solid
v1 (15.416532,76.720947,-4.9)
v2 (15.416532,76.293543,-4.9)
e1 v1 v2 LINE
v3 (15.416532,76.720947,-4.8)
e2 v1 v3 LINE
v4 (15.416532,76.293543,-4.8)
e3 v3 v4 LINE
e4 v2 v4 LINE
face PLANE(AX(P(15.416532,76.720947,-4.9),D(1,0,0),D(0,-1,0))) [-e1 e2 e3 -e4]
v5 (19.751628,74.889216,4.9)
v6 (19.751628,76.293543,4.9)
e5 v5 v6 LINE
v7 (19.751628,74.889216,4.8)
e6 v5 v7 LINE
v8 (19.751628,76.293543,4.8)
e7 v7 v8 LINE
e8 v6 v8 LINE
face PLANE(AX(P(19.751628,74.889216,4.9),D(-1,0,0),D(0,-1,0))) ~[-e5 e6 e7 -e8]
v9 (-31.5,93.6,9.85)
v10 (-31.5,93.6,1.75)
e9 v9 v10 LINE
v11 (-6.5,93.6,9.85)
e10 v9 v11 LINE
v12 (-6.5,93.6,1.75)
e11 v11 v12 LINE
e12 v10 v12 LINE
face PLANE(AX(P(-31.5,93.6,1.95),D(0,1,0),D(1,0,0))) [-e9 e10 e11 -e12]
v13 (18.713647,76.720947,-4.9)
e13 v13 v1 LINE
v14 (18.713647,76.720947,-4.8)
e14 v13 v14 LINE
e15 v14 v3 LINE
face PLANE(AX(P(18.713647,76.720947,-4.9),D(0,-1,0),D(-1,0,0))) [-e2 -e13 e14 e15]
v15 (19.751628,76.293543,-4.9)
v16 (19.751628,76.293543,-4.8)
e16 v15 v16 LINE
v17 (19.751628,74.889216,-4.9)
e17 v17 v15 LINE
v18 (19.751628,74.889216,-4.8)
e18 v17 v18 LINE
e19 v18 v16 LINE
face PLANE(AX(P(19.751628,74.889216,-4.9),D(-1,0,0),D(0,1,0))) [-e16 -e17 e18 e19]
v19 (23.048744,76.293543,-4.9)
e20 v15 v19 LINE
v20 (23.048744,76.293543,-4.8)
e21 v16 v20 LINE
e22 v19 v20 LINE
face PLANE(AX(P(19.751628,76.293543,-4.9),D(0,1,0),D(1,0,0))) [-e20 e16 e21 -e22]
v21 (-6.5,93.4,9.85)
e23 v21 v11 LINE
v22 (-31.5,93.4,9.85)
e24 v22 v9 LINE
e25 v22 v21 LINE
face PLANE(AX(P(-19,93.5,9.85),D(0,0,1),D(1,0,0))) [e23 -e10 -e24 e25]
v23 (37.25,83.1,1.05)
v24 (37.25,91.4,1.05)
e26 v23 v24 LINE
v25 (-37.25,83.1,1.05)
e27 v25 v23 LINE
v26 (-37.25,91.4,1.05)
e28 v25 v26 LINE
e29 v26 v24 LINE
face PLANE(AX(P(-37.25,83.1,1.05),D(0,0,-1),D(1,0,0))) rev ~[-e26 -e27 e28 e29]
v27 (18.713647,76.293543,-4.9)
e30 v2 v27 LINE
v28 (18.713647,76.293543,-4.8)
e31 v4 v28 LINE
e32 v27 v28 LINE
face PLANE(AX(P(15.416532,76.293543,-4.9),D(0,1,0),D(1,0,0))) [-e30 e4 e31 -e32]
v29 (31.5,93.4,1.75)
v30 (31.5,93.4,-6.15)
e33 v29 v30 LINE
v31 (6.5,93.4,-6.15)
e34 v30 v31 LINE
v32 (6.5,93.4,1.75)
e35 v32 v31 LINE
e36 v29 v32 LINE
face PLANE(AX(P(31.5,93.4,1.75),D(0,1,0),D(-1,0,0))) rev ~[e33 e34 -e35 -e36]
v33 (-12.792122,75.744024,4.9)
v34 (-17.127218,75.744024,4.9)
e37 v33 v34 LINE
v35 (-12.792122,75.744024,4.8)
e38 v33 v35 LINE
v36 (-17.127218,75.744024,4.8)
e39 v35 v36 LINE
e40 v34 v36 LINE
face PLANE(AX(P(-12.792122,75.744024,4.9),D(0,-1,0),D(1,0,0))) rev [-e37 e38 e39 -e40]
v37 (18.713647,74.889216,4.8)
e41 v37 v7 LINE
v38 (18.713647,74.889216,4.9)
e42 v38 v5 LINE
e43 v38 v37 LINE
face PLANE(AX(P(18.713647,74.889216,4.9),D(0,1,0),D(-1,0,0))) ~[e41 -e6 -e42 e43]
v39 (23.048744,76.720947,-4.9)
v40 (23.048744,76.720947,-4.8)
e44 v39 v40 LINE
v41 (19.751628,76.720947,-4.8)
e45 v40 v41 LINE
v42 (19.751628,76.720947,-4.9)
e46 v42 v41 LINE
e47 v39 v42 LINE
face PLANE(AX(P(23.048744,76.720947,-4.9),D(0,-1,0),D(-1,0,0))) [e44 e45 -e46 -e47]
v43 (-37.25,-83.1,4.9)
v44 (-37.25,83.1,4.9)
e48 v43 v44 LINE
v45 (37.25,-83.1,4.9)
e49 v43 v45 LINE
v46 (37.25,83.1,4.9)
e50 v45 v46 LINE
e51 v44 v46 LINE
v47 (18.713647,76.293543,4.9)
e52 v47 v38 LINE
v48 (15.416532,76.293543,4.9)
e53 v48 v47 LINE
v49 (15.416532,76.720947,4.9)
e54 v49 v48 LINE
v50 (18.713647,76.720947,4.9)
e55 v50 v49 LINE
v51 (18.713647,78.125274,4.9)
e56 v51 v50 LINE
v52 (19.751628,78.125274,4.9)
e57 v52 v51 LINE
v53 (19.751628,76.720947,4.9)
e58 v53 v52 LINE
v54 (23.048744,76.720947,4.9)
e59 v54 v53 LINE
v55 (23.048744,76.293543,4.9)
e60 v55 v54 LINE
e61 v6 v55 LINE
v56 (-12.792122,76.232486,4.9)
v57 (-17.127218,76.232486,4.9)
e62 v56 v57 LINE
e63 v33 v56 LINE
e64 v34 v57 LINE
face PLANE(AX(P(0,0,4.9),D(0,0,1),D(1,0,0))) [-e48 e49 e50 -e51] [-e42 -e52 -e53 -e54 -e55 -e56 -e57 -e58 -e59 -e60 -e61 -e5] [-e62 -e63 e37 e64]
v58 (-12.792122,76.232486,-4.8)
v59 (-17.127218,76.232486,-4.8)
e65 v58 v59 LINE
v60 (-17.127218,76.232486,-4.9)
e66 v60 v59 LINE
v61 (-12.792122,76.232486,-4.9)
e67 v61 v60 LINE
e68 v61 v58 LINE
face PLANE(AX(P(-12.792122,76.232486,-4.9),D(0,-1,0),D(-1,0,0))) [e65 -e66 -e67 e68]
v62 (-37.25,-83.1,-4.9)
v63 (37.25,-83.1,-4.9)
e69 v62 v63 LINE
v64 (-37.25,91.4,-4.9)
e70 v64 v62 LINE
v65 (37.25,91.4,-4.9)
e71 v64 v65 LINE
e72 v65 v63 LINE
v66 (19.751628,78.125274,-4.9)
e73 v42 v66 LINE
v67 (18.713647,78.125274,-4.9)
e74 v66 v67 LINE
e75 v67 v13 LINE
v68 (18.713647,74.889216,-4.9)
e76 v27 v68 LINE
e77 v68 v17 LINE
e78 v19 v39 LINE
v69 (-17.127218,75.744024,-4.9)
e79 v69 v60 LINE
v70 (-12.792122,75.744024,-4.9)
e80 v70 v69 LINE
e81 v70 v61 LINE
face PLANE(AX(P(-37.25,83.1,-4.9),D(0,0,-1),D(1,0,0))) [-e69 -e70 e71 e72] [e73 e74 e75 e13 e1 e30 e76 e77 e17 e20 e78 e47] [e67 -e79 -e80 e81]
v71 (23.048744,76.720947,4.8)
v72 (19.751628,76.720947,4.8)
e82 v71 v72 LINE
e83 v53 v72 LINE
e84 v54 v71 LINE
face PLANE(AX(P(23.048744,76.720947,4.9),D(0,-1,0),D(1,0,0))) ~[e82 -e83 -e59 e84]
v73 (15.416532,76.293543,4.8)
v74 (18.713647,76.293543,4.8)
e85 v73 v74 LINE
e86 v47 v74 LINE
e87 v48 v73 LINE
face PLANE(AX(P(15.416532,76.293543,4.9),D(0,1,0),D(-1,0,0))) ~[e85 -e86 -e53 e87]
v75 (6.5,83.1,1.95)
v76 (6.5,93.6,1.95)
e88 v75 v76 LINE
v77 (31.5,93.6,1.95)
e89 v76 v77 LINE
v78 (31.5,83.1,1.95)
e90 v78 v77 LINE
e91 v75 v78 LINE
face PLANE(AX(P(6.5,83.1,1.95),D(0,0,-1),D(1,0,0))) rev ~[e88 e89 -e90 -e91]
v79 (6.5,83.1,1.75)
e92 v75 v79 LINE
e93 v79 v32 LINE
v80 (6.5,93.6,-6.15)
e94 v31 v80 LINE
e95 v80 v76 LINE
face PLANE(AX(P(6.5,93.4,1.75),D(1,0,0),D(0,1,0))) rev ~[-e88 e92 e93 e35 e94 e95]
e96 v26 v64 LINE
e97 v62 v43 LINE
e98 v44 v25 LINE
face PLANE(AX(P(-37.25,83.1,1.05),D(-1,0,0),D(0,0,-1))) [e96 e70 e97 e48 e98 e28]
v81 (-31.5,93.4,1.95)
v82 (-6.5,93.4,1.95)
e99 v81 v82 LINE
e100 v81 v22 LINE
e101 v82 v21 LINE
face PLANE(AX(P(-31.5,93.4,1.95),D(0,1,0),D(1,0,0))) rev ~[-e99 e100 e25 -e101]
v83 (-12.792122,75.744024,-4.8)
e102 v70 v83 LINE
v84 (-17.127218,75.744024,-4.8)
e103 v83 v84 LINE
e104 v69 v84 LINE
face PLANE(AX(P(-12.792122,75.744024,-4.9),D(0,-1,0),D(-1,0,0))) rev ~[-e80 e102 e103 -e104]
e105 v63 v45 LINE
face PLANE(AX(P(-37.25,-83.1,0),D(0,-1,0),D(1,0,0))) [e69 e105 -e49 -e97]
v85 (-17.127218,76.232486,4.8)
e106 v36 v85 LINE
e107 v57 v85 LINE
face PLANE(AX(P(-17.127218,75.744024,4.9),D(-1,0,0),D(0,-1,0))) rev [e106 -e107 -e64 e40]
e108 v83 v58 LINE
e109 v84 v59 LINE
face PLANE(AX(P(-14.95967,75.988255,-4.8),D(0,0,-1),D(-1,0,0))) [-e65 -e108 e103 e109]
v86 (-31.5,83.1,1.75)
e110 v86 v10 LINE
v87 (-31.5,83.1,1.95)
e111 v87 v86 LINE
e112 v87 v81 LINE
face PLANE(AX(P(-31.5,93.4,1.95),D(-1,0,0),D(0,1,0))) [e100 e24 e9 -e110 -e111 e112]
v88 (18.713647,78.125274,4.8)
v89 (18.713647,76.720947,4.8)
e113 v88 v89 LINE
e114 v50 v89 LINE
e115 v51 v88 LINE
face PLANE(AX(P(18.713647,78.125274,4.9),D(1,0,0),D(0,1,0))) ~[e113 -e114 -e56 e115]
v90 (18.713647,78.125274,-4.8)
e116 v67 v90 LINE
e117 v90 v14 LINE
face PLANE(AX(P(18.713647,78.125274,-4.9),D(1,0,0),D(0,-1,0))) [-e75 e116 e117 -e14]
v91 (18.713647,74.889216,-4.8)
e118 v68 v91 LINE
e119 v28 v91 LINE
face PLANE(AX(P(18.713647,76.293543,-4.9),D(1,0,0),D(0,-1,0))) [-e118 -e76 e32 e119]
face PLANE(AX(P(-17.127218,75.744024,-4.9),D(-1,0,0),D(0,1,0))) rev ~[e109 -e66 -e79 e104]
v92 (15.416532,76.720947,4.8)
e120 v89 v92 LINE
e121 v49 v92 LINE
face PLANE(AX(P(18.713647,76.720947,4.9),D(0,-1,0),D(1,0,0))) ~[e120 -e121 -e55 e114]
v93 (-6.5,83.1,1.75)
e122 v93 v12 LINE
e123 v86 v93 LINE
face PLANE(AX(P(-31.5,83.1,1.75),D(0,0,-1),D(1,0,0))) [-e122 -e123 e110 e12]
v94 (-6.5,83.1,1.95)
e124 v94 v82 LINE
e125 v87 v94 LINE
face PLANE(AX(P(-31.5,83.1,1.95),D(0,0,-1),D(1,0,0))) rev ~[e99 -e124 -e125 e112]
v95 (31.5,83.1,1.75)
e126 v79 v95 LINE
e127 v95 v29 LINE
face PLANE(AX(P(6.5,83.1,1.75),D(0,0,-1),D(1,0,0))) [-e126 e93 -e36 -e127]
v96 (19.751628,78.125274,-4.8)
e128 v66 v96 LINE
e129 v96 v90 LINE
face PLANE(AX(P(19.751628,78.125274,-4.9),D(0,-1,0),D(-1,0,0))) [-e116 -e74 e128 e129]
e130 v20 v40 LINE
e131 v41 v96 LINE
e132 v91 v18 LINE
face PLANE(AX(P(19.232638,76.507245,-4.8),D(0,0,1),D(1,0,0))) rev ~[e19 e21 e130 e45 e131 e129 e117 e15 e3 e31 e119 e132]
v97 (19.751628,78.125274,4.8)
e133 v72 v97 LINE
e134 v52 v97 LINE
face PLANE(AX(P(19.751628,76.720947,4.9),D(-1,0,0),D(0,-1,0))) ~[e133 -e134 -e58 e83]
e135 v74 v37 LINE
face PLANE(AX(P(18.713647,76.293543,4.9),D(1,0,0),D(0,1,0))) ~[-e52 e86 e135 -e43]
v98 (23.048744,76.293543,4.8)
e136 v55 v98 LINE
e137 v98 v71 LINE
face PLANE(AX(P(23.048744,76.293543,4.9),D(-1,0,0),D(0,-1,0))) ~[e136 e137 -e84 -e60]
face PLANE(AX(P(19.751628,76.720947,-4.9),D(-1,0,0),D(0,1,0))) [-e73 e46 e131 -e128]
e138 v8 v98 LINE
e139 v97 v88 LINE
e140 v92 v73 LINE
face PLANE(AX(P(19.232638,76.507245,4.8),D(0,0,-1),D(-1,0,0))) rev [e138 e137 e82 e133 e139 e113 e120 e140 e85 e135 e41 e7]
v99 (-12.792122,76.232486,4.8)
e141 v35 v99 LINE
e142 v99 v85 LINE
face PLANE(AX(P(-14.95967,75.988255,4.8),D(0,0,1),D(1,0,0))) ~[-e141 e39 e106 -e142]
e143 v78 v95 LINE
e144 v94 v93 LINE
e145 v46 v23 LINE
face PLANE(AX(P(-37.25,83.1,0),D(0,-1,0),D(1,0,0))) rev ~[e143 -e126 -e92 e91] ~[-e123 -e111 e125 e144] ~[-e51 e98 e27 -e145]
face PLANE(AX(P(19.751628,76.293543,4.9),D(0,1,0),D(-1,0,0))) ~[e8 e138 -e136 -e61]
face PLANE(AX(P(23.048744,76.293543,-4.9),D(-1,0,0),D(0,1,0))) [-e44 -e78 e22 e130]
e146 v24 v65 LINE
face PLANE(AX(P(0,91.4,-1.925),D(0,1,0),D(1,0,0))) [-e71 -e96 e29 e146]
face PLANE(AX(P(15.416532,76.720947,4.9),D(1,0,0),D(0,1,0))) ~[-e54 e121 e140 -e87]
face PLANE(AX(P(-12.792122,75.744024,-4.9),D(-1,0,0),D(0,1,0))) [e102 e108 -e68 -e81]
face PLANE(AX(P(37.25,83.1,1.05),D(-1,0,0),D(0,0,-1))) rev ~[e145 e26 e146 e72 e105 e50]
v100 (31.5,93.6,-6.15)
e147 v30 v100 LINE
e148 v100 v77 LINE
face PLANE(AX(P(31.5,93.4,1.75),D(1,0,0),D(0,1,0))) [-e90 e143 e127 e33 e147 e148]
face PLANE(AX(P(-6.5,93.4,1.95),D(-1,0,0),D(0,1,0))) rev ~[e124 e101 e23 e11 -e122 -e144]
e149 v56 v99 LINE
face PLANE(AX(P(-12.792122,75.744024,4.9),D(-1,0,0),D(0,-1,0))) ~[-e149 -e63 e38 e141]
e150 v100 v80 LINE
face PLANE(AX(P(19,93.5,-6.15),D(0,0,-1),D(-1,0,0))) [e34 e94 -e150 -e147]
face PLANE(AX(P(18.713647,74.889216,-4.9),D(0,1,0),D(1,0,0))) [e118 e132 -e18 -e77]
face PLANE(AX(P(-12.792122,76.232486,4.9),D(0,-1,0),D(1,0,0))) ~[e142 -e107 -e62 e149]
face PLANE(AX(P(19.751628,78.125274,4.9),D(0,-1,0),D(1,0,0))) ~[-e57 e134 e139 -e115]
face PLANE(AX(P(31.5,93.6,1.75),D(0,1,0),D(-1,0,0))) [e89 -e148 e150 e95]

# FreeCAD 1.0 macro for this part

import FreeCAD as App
import Part
import Sketcher
from FreeCAD import Vector


def add_polygon(sketch, points):
    """Adds a closed chain of lines whose ends are joined by coincident constraints."""
    first, n = sketch.GeometryCount, len(points)
    for a, b in zip(points, points[1:] + points[:1]):
        sketch.addGeometry(Part.LineSegment(App.Vector(*a, 0), App.Vector(*b, 0)), False)
    for i in range(n):
        sketch.addConstraint(Sketcher.Constraint("Coincident", first + i, 2, first + (i + 1) % n, 1))

doc = App.newDocument("Part")
params = doc.addObject("Spreadsheet::Sheet", "Params")
for row, (alias, value) in enumerate([
    ("sketch1_width", "74.5 mm"),
    ("sketch1_height", "166.2 mm"),
    ("pad1_length", "9.8 mm"),
    ("sketch2_width", "74.5 mm"),
    ("sketch2_height", "5.95 mm"),
    ("pad2_length", "8.3 mm"),
    ("sketch3_width", "25 mm"),
    ("sketch3_height", "0.2 mm"),
    ("pad3_length", "10.5 mm"),
    ("sketch4_width", "25 mm"),
    ("sketch4_height", "0.2 mm"),
    ("pad4_length", "7.9 mm"),
    ("sketch5_width", "25 mm"),
    ("sketch5_height", "0.2 mm"),
    ("pad5_length", "7.9 mm"),
    ("pocket1_length", "0.1 mm"),
], start=1):
    params.set(f"A{row}", alias)
    params.set(f"B{row}", "=" + value)
    params.setAlias(f"B{row}", alias)

body = doc.addObject("PartDesign::Body", "Body")

sketch1 = doc.addObject("Sketcher::SketchObject", "Sketch")
body.addObject(sketch1)
sketch1.AttachmentSupport = (doc.XY_Plane, [""])
sketch1.MapMode = "FlatFace"
add_polygon(sketch1, [(-37, 83), (-37, -83), (37, -83), (37, 83)])
sketch1.addConstraint(Sketcher.Constraint("Vertical", 0))
sketch1.addConstraint(Sketcher.Constraint("Horizontal", 1))
sketch1.addConstraint(Sketcher.Constraint("Vertical", 2))
sketch1.addConstraint(Sketcher.Constraint("Horizontal", 3))
sketch1.addConstraint(Sketcher.Constraint("Symmetric", 0, 2, 2, 2, -1, 1))
sketch1.addConstraint(Sketcher.Constraint("DistanceX", 1, 1, 1, 2, 74.5))
sketch1.addConstraint(Sketcher.Constraint("DistanceY", 0, 2, 0, 1, 166.2))
sketch1.setExpression("Constraints[9]", "Params.sketch1_width")
sketch1.setExpression("Constraints[10]", "Params.sketch1_height")
pad1 = doc.addObject("PartDesign::Pad", "Pad")
body.addObject(pad1)
pad1.Profile = sketch1
pad1.setExpression("Length", "Params.pad1_length")
pad1.Midplane = True

sketch2 = doc.addObject("Sketcher::SketchObject", "Sketch001")
body.addObject(sketch2)
sketch2.AttachmentSupport = (doc.XZ_Plane, [""])
sketch2.MapMode = "FlatFace"
sketch2.AttachmentOffset = App.Placement(Vector(0, 0, -83.1), App.Rotation())
add_polygon(sketch2, [(-37, -5), (-37, 1), (37, 1), (37, -5)])
sketch2.addConstraint(Sketcher.Constraint("Vertical", 0))
sketch2.addConstraint(Sketcher.Constraint("Horizontal", 1))
sketch2.addConstraint(Sketcher.Constraint("Vertical", 2))
sketch2.addConstraint(Sketcher.Constraint("Horizontal", 3))
sketch2.addConstraint(Sketcher.Constraint("DistanceX", 1, 1, 1, 2, 74.5))
sketch2.addConstraint(Sketcher.Constraint("DistanceY", 0, 1, 0, 2, 5.95))
sketch2.addConstraint(Sketcher.Constraint("DistanceY", 2, 2, -1, 1, 4.9))
sketch2.addConstraint(Sketcher.Constraint("DistanceX", 0, 2, -1, 1, 37.25))
sketch2.setExpression("Constraints[8]", "Params.sketch2_width")
sketch2.setExpression("Constraints[9]", "Params.sketch2_height")
pad2 = doc.addObject("PartDesign::Pad", "Pad001")
body.addObject(pad2)
pad2.Profile = sketch2
pad2.setExpression("Length", "Params.pad2_length")
pad2.Reversed = True

sketch3 = doc.addObject("Sketcher::SketchObject", "Sketch002")
body.addObject(sketch3)
sketch3.AttachmentSupport = (doc.XZ_Plane, [""])
sketch3.MapMode = "FlatFace"
sketch3.AttachmentOffset = App.Placement(Vector(0, 0, -83.1), App.Rotation())
add_polygon(sketch3, [(-31.5, 1.75), (-31.5, 1.95), (-6.5, 1.95), (-6.5, 1.75)])
add_polygon(sketch3, [(6.5, 1.75), (6.5, 1.95), (31.5, 1.95), (31.5, 1.75)])
sketch3.addConstraint(Sketcher.Constraint("Vertical", 0))
sketch3.addConstraint(Sketcher.Constraint("Horizontal", 1))
sketch3.addConstraint(Sketcher.Constraint("Vertical", 2))
sketch3.addConstraint(Sketcher.Constraint("Horizontal", 3))
sketch3.addConstraint(Sketcher.Constraint("Vertical", 4))
sketch3.addConstraint(Sketcher.Constraint("Horizontal", 5))
sketch3.addConstraint(Sketcher.Constraint("Vertical", 6))
sketch3.addConstraint(Sketcher.Constraint("Horizontal", 7))
sketch3.addConstraint(Sketcher.Constraint("Symmetric", 1, 2, 4, 2, -2))
sketch3.addConstraint(Sketcher.Constraint("Symmetric", 3, 2, 6, 2, -2))
sketch3.addConstraint(Sketcher.Constraint("DistanceX", 1, 1, 1, 2, 25.0))
sketch3.addConstraint(Sketcher.Constraint("DistanceY", 0, 1, 0, 2, 0.2))
sketch3.addConstraint(Sketcher.Constraint("DistanceX", 1, 2, 4, 2, 13.0))
sketch3.addConstraint(Sketcher.Constraint("DistanceY", -1, 1, 0, 2, 1.95))
sketch3.setExpression("Constraints[18]", "Params.sketch3_width")
sketch3.setExpression("Constraints[19]", "Params.sketch3_height")
pad3 = doc.addObject("PartDesign::Pad", "Pad002")
body.addObject(pad3)
pad3.Profile = sketch3
pad3.setExpression("Length", "Params.pad3_length")
pad3.Reversed = True

sketch4 = doc.addObject("Sketcher::SketchObject", "Sketch003")
body.addObject(sketch4)
sketch4.AttachmentSupport = (doc.XY_Plane, [""])
sketch4.MapMode = "FlatFace"
sketch4.AttachmentOffset = App.Placement(Vector(0, 0, 1.95), App.Rotation())
add_polygon(sketch4, [(-31.5, 93.6), (-31.5, 93.4), (-6.5, 93.4), (-6.5, 93.6)])
sketch4.addConstraint(Sketcher.Constraint("Vertical", 0))
sketch4.addConstraint(Sketcher.Constraint("Horizontal", 1))
sketch4.addConstraint(Sketcher.Constraint("Vertical", 2))
sketch4.addConstraint(Sketcher.Constraint("Horizontal", 3))
sketch4.addConstraint(Sketcher.Constraint("DistanceX", 1, 1, 1, 2, 25.0))
sketch4.addConstraint(Sketcher.Constraint("DistanceY", 0, 2, 0, 1, 0.2))
sketch4.addConstraint(Sketcher.Constraint("DistanceX", 0, 2, -1, 1, 31.5))
sketch4.addConstraint(Sketcher.Constraint("DistanceY", -1, 1, 0, 2, 93.4))
sketch4.setExpression("Constraints[8]", "Params.sketch4_width")
sketch4.setExpression("Constraints[9]", "Params.sketch4_height")
pad4 = doc.addObject("PartDesign::Pad", "Pad003")
body.addObject(pad4)
pad4.Profile = sketch4
pad4.setExpression("Length", "Params.pad4_length")

sketch5 = doc.addObject("Sketcher::SketchObject", "Sketch004")
body.addObject(sketch5)
sketch5.AttachmentSupport = (doc.XY_Plane, [""])
sketch5.MapMode = "FlatFace"
sketch5.AttachmentOffset = App.Placement(Vector(0, 0, 1.75), App.Rotation())
add_polygon(sketch5, [(31.5, 93.6), (31.5, 93.4), (6.5, 93.4), (6.5, 93.6)])
sketch5.addConstraint(Sketcher.Constraint("Vertical", 0))
sketch5.addConstraint(Sketcher.Constraint("Horizontal", 1))
sketch5.addConstraint(Sketcher.Constraint("Vertical", 2))
sketch5.addConstraint(Sketcher.Constraint("Horizontal", 3))
sketch5.addConstraint(Sketcher.Constraint("DistanceX", 1, 2, 1, 1, 25.0))
sketch5.addConstraint(Sketcher.Constraint("DistanceY", 0, 2, 0, 1, 0.2))
sketch5.addConstraint(Sketcher.Constraint("DistanceX", -1, 1, 0, 2, 31.5))
sketch5.addConstraint(Sketcher.Constraint("DistanceY", -1, 1, 0, 2, 93.4))
sketch5.setExpression("Constraints[8]", "Params.sketch5_width")
sketch5.setExpression("Constraints[9]", "Params.sketch5_height")
pad5 = doc.addObject("PartDesign::Pad", "Pad004")
body.addObject(pad5)
pad5.Profile = sketch5
pad5.setExpression("Length", "Params.pad5_length")
pad5.Reversed = True

sketch6 = doc.addObject("Sketcher::SketchObject", "Sketch005")
body.addObject(sketch6)
sketch6.AttachmentSupport = (doc.XY_Plane, [""])
sketch6.MapMode = "FlatFace"
sketch6.AttachmentOffset = App.Placement(Vector(0, 0, -4.9), App.Rotation())
add_polygon(sketch6, [(19.75, 78.13), (19.75, 76.72), (23.05, 76.72), (23.05, 76.29), (19.75, 76.29), (19.75, 74.89), (18.71, 74.89), (18.71, 76.29), (15.42, 76.29), (15.42, 76.72), (18.71, 76.72), (18.71, 78.13)])
add_polygon(sketch6, [(-12.79, 76.23), (-12.79, 75.74), (-17.13, 75.74), (-17.13, 76.23)])
sketch6.addConstraint(Sketcher.Constraint("Vertical", 0))
sketch6.addConstraint(Sketcher.Constraint("Horizontal", 1))
sketch6.addConstraint(Sketcher.Constraint("Vertical", 2))
sketch6.addConstraint(Sketcher.Constraint("Horizontal", 3))
sketch6.addConstraint(Sketcher.Constraint("Vertical", 4))
sketch6.addConstraint(Sketcher.Constraint("Horizontal", 5))
sketch6.addConstraint(Sketcher.Constraint("Vertical", 6))
sketch6.addConstraint(Sketcher.Constraint("Horizontal", 7))
sketch6.addConstraint(Sketcher.Constraint("Vertical", 8))
sketch6.addConstraint(Sketcher.Constraint("Horizontal", 9))
sketch6.addConstraint(Sketcher.Constraint("Vertical", 10))
sketch6.addConstraint(Sketcher.Constraint("Horizontal", 11))
sketch6.addConstraint(Sketcher.Constraint("Vertical", 12))
sketch6.addConstraint(Sketcher.Constraint("Horizontal", 13))
sketch6.addConstraint(Sketcher.Constraint("Vertical", 14))
sketch6.addConstraint(Sketcher.Constraint("Horizontal", 15))
sketch6.addConstraint(Sketcher.Constraint("Horizontal", 3, 2, 6, 2))
sketch6.addConstraint(Sketcher.Constraint("Horizontal", 1, 2, 8, 2))
sketch6.addConstraint(Sketcher.Constraint("Vertical", 0, 2, 3, 2))
sketch6.addConstraint(Sketcher.Constraint("Vertical", 6, 2, 9, 2))
sketch6.addConstraint(Sketcher.Constraint("Equal", 3, 7))
sketch6.addConstraint(Sketcher.Constraint("Equal", 0, 4))
sketch6.addConstraint(Sketcher.Constraint("DistanceX", 5, 2, 5, 1, 1.037981))
sketch6.addConstraint(Sketcher.Constraint("DistanceY", 12, 2, 12, 1, 0.488462))
sketch6.addConstraint(Sketcher.Constraint("DistanceX", 1, 1, 1, 2, 3.297115))
sketch6.addConstraint(Sketcher.Constraint("DistanceX", 13, 2, 13, 1, 4.335096))
sketch6.addConstraint(Sketcher.Constraint("DistanceY", 0, 2, 0, 1, 1.404327))
sketch6.addConstraint(Sketcher.Constraint("DistanceY", 2, 2, 2, 1, 0.427404))
sketch6.addConstraint(Sketcher.Constraint("DistanceX", -1, 1, 0, 2, 19.751628))
sketch6.addConstraint(Sketcher.Constraint("DistanceX", 12, 2, -1, 1, 12.792122))
sketch6.addConstraint(Sketcher.Constraint("DistanceY", 12, 2, 7, 2, 0.549519))
sketch6.addConstraint(Sketcher.Constraint("DistanceY", -1, 1, 0, 2, 76.720947))
pocket1 = doc.addObject("PartDesign::Pocket", "Pocket")
body.addObject(pocket1)
pocket1.Profile = sketch6
pocket1.setExpression("Length", "Params.pocket1_length")
pocket1.Reversed = True
doc.recompute()

mirrored = doc.addObject("PartDesign::Mirrored", "Mirrored")
body.addObject(mirrored)
mirrored.Originals = [pocket1]
mirrored.MirrorPlane = (doc.XY_Plane, [""])
body.Tip = mirrored

doc.recompute()
